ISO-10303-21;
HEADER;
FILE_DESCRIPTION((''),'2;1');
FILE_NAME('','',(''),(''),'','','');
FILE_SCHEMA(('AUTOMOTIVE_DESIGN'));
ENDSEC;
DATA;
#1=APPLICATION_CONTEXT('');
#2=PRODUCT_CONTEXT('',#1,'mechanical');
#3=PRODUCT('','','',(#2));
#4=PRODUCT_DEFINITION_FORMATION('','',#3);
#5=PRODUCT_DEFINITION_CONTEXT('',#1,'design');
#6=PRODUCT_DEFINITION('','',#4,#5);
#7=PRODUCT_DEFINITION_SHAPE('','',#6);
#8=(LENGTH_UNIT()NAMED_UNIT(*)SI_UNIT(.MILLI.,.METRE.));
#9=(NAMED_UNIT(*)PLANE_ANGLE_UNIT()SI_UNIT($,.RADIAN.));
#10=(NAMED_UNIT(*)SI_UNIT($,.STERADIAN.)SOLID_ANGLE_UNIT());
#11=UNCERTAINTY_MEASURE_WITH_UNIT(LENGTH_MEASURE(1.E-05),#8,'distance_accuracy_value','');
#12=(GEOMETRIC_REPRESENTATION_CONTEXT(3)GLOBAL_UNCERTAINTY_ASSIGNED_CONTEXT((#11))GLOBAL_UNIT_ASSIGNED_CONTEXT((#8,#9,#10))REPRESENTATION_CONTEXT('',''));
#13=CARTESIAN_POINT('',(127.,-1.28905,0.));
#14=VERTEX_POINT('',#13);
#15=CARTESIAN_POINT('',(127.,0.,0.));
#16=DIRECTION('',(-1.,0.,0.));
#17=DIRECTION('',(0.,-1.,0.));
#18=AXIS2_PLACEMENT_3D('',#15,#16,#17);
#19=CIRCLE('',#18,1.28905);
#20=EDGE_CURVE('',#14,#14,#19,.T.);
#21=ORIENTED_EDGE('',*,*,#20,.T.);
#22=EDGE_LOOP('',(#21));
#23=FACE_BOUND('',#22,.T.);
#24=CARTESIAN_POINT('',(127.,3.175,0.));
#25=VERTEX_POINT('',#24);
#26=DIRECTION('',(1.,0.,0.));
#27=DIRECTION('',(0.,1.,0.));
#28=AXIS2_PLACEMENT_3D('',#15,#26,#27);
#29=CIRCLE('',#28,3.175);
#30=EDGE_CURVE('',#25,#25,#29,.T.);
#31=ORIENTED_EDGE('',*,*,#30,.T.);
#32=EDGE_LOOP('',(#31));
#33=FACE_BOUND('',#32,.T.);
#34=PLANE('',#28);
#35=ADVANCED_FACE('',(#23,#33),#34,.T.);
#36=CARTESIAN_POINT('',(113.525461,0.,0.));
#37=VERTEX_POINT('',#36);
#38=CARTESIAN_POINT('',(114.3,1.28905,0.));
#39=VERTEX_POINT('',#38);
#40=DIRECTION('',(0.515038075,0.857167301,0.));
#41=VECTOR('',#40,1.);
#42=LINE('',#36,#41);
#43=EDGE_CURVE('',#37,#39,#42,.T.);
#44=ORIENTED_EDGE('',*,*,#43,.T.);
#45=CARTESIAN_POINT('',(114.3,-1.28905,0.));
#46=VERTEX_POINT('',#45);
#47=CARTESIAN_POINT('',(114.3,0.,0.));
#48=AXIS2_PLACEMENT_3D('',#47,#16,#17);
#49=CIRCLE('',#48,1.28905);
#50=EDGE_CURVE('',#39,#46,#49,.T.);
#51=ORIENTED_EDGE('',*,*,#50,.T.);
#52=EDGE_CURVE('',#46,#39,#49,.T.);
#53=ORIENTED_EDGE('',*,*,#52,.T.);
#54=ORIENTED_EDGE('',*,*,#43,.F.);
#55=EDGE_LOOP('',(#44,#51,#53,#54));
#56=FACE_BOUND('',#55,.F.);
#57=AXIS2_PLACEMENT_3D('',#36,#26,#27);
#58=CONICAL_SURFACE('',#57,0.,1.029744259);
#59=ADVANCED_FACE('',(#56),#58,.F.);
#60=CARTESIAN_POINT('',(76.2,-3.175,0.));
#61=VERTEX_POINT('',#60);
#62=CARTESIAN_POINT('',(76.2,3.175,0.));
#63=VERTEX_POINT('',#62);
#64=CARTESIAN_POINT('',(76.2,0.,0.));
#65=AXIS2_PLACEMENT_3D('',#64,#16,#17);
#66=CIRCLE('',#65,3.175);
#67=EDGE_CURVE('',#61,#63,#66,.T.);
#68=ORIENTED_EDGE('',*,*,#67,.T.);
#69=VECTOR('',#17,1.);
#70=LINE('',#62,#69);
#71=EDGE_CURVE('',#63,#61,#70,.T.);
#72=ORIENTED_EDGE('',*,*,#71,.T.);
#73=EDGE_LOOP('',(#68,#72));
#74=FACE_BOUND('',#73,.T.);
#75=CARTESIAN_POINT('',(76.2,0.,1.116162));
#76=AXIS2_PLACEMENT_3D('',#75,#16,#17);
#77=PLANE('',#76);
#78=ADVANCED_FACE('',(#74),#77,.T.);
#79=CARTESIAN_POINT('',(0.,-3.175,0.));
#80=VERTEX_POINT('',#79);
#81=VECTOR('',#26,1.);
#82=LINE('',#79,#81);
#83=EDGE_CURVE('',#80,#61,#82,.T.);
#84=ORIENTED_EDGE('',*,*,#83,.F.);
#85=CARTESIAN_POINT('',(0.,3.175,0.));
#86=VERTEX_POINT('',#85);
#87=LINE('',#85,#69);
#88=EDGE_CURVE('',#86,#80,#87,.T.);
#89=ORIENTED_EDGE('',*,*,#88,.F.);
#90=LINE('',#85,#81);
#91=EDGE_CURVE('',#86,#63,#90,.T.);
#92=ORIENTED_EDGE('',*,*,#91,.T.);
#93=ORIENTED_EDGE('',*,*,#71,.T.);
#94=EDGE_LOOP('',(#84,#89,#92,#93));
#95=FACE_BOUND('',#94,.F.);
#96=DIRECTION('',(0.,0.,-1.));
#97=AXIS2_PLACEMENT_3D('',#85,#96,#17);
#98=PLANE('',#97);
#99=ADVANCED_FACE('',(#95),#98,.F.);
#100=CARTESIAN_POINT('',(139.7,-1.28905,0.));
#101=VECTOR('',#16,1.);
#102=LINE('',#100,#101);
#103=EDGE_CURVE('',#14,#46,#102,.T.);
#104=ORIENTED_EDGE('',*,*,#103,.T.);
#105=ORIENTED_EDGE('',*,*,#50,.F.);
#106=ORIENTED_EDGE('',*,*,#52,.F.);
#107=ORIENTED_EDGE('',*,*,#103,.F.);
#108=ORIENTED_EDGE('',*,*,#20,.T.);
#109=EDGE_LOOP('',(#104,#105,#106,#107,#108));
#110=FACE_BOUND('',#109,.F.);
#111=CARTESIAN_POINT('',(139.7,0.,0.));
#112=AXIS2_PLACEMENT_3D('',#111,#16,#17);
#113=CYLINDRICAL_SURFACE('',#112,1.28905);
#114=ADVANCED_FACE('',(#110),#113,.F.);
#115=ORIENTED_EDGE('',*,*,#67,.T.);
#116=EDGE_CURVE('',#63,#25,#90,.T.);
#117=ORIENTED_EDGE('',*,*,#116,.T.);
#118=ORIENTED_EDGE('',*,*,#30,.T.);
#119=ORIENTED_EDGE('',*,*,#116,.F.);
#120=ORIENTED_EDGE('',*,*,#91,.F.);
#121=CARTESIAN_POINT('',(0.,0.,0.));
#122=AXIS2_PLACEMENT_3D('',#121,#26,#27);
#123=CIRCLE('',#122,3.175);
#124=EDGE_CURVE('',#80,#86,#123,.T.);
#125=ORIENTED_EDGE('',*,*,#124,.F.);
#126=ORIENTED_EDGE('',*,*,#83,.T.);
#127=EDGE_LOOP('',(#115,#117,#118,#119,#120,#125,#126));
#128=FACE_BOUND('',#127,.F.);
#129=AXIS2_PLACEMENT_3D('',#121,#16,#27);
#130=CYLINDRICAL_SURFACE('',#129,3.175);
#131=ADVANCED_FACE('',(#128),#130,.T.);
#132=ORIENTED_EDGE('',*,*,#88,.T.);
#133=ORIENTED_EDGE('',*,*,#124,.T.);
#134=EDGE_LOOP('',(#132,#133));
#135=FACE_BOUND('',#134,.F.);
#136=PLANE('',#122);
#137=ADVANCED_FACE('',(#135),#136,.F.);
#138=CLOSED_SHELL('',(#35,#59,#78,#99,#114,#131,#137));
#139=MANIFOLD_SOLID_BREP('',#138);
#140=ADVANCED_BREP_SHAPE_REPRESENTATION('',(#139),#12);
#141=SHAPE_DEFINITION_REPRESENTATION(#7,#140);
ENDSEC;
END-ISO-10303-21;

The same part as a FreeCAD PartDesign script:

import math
import FreeCAD as App
import Part
import Sketcher
from FreeCAD import Vector
Q = App.Units.Quantity

doc = App.newDocument("Part")
body = doc.addObject("PartDesign::Body", "Body")

# Sketch on YZ plane
sketch1 = body.newObject("Sketcher::SketchObject", "Sketch")
sketch1.AttachmentSupport = (doc.getObject("YZ_Plane"), [""])
sketch1.MapMode = "FlatFace"
sketch1.addGeometry(Part.Circle(Vector(0, 0, 0), Vector(0, 0, 1), 3.2), False)
sketch1.addConstraint([
    Sketcher.Constraint("Coincident", 0, 3, -1, 1),
    Sketcher.Constraint("Diameter", 0, Q("0.25 in")),
])
pad1 = body.newObject("PartDesign::Pad", "Pad")
pad1.Profile = sketch1
pad1.Length = Q("5 in")

# Sketch on YZ plane
sketch2 = body.newObject("Sketcher::SketchObject", "Sketch001")
sketch2.AttachmentSupport = (doc.getObject("YZ_Plane"), [""])
sketch2.MapMode = "FlatFace"
sketch2.AttachmentOffset = App.Placement(Vector(0, 0, 5 * 25.4), App.Rotation())
sketch2.addGeometry(Part.Circle(Vector(0, 0, 0), Vector(0, 0, 1), 1.3), False)
sketch2.addConstraint([
    Sketcher.Constraint("Coincident", 0, 3, -1, 1),
    Sketcher.Constraint("Diameter", 0, Q("0.1015 in")),
])
doc.recompute()
hole = body.newObject("PartDesign::Hole", "Hole")
hole.Profile = sketch2
hole.ThreadType = "None"
hole.Diameter = Q("0.1015 in")
hole.DepthType = "Dimension"
hole.Depth = Q("0.5 in")
hole.DrillPoint = "Angled"
hole.DrillPointAngle = 118

# Sketch on YZ plane
sketch3 = body.newObject("Sketcher::SketchObject", "Sketch002")
sketch3.AttachmentSupport = (doc.getObject("YZ_Plane"), [""])
sketch3.MapMode = "FlatFace"
sketch3.addGeometry([
    Part.ArcOfCircle(Part.Circle(Vector(0, 0, 0), Vector(0, 0, 1), 3.2), math.radians(0), math.radians(180)),
    Part.LineSegment(Vector(3.2, 0, 0), Vector(-3.2, 0, 0)),
], False)
sketch3.addConstraint([
    Sketcher.Constraint("Coincident", 0, 1, 1, 1),
    Sketcher.Constraint("Coincident", 1, 2, 0, 2),
    Sketcher.Constraint("Horizontal", 1),
    Sketcher.Constraint("Coincident", 0, 3, -1, 1),
    Sketcher.Constraint("PointOnObject", 0, 1, -1),
    Sketcher.Constraint("Radius", 0, Q("0.125 in")),
])
pocket1 = body.newObject("PartDesign::Pocket", "Pocket")
pocket1.Profile = sketch3
pocket1.Length = Q("3 in")
pocket1.Reversed = True

doc.recompute()
